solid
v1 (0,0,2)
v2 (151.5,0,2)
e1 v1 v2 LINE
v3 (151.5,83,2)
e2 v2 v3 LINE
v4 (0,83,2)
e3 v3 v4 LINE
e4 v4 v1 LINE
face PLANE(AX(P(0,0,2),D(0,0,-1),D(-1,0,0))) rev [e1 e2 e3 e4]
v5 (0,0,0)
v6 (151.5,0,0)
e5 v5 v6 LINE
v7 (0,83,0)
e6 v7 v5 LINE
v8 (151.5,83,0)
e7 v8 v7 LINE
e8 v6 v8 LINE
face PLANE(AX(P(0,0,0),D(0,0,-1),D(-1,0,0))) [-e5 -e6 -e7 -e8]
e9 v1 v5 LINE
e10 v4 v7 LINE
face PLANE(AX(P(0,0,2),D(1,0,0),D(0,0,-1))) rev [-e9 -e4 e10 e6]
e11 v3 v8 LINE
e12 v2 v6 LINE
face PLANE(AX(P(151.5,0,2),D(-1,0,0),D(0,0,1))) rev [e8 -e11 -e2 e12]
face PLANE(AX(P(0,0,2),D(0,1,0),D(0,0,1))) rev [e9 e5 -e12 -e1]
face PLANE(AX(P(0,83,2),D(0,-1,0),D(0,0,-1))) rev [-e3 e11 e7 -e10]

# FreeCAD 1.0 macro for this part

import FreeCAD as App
import Part
import Sketcher


def add_polygon(sketch, points):
    """Adds a closed chain of lines whose ends are joined by coincident constraints."""
    first, n = sketch.GeometryCount, len(points)
    for a, b in zip(points, points[1:] + points[:1]):
        sketch.addGeometry(Part.LineSegment(App.Vector(*a, 0), App.Vector(*b, 0)), False)
    for i in range(n):
        sketch.addConstraint(Sketcher.Constraint("Coincident", first + i, 2, first + (i + 1) % n, 1))

doc = App.newDocument("Part")
body = doc.addObject("PartDesign::Body", "Body")

# Sketch on XY plane
sketch1 = body.newObject("Sketcher::SketchObject", "Sketch")
sketch1.AttachmentSupport = (doc.getObject("XY_Plane"), [""])
sketch1.MapMode = "FlatFace"
add_polygon(sketch1, [(0, 83), (0, 0), (152, 0), (152, 83)])  # lines 0-3
sketch1.addConstraint([
    Sketcher.Constraint("Vertical", 0),
    Sketcher.Constraint("Horizontal", 1),
    Sketcher.Constraint("Vertical", 2),
    Sketcher.Constraint("Horizontal", 3),
    Sketcher.Constraint("Coincident", 0, 2, -1, 1),
    Sketcher.Constraint("DistanceY", 0, 2, 0, 1, 83.0),
    Sketcher.Constraint("DistanceX", 1, 1, 1, 2, 151.5),
])
pad1 = body.newObject("PartDesign::Pad", "Pad")
pad1.Profile = sketch1
pad1.Length = 2

doc.recompute()
